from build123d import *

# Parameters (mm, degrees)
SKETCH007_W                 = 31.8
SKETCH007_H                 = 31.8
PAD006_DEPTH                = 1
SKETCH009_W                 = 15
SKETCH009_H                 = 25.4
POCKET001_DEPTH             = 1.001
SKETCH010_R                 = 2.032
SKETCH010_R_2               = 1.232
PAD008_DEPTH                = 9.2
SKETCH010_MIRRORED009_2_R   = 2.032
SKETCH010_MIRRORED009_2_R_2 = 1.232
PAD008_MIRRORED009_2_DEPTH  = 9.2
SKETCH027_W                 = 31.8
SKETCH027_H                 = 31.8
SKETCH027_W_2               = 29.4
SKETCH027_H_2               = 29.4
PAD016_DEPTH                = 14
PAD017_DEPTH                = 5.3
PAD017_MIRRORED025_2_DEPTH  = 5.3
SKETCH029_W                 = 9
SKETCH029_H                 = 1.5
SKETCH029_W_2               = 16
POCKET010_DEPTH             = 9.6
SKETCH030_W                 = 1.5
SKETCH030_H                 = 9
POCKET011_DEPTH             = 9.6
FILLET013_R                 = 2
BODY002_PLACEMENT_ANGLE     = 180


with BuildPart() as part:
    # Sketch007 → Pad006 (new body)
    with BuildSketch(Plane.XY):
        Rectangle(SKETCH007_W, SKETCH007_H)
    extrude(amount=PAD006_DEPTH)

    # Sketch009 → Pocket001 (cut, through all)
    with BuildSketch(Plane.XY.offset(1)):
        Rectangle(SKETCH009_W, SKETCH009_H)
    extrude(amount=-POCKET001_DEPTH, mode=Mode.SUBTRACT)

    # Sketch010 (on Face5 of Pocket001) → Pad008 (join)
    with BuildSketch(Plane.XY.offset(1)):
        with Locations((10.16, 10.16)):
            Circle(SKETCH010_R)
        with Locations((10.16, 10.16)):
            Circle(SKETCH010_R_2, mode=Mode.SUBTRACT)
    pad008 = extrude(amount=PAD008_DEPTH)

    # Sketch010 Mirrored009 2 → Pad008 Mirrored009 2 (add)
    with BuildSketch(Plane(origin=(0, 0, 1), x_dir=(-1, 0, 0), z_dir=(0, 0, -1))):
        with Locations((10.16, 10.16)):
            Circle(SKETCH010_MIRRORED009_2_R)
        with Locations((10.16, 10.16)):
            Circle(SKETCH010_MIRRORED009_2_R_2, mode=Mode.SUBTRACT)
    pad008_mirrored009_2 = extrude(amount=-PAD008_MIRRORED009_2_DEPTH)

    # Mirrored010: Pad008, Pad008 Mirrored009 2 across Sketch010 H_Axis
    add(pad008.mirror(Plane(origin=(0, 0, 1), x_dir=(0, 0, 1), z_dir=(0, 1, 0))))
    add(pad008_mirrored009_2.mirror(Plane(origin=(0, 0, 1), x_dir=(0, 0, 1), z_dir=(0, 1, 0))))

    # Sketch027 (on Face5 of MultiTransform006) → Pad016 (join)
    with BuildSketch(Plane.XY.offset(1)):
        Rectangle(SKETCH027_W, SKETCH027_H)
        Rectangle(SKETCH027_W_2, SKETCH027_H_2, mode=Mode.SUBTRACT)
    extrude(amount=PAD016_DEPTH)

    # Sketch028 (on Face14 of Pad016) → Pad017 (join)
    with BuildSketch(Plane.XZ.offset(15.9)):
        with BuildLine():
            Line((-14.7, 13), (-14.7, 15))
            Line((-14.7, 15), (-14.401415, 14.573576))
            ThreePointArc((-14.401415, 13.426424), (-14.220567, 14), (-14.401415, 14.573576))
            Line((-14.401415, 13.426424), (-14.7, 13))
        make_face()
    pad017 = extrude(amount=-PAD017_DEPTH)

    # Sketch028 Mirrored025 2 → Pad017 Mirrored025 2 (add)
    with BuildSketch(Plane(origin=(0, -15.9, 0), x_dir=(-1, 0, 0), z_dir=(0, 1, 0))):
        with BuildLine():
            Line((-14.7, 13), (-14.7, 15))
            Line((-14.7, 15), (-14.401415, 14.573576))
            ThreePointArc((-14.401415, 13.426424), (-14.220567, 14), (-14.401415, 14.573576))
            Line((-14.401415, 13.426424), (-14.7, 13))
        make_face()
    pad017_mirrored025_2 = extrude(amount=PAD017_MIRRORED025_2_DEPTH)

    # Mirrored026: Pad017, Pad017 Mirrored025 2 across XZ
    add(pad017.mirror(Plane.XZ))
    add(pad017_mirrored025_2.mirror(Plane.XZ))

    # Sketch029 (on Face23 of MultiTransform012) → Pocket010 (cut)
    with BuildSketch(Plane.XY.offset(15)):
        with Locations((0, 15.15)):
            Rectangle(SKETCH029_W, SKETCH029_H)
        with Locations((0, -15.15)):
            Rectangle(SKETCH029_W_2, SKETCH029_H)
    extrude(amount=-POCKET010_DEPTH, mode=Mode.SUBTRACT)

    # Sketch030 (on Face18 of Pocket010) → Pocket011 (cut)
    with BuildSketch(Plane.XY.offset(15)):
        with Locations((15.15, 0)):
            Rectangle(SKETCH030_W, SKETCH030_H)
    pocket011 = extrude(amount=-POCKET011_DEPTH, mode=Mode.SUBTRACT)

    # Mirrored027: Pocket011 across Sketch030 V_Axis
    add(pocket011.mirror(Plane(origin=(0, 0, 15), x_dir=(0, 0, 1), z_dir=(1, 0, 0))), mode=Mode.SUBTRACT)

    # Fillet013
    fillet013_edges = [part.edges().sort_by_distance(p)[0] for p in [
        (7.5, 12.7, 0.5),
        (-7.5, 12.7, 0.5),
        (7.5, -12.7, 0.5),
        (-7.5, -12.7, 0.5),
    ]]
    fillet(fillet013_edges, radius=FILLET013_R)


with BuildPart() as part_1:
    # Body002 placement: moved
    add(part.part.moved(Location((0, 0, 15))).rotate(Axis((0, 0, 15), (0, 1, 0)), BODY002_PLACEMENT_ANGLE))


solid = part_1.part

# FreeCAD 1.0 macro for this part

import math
import FreeCAD as App
import Part
import Sketcher
from FreeCAD import Vector


def edges_at(feature, points):
    """Names of the edges that pass closest to the given points."""
    edges = feature.Shape.Edges
    near = lambda p: min(range(len(edges)), key=lambda i: edges[i].distToShape(Part.Vertex(*p))[0])
    return sorted({f"Edge{near(p) + 1}" for p in points})


def add_polygon(sketch, points):
    """Adds a closed chain of lines whose ends are joined by coincident constraints."""
    first, n = sketch.GeometryCount, len(points)
    for a, b in zip(points, points[1:] + points[:1]):
        sketch.addGeometry(Part.LineSegment(App.Vector(*a, 0), App.Vector(*b, 0)), False)
    for i in range(n):
        sketch.addConstraint(Sketcher.Constraint("Coincident", first + i, 2, first + (i + 1) % n, 1))

doc = App.newDocument("Part")
body = doc.addObject("PartDesign::Body", "Body")

sketch1 = doc.addObject("Sketcher::SketchObject", "Sketch")
body.addObject(sketch1)
sketch1.AttachmentSupport = (doc.XY_Plane, [""])
sketch1.MapMode = "FlatFace"
add_polygon(sketch1, [(-16, 16), (-16, -16), (16, -16), (16, 16)])
sketch1.addConstraint([
    Sketcher.Constraint("Vertical", 0),
    Sketcher.Constraint("Horizontal", 1),
    Sketcher.Constraint("Vertical", 2),
    Sketcher.Constraint("Horizontal", 3),
    Sketcher.Constraint("Symmetric", 0, 2, 2, 2, -1, 1),
    Sketcher.Constraint("Equal", 3, 0),
    Sketcher.Constraint("DistanceX", 1, 1, 1, 2, 31.8),
])
pad1 = doc.addObject("PartDesign::Pad", "Pad")
body.addObject(pad1)
pad1.Profile = sketch1
pad1.Length = 1

sketch2 = doc.addObject("Sketcher::SketchObject", "Sketch001")
body.addObject(sketch2)
sketch2.AttachmentSupport = (doc.XY_Plane, [""])
sketch2.MapMode = "FlatFace"
sketch2.AttachmentOffset = App.Placement(Vector(0, 0, 1), App.Rotation())
add_polygon(sketch2, [(-8, 13), (-8, -13), (8, -13), (8, 13)])
sketch2.addConstraint([
    Sketcher.Constraint("Vertical", 0),
    Sketcher.Constraint("Horizontal", 1),
    Sketcher.Constraint("Vertical", 2),
    Sketcher.Constraint("Horizontal", 3),
    Sketcher.Constraint("Symmetric", 0, 2, 2, 2, -1, 1),
    Sketcher.Constraint("DistanceX", 1, 1, 1, 2, 15.0),
    Sketcher.Constraint("DistanceY", 0, 2, 0, 1, 25.4),
])
pocket1 = doc.addObject("PartDesign::Pocket", "Pocket")
body.addObject(pocket1)
pocket1.Profile = sketch2
pocket1.Type = "ThroughAll"

sketch3 = doc.addObject("Sketcher::SketchObject", "Sketch002")
body.addObject(sketch3)
sketch3.AttachmentSupport = (doc.XY_Plane, [""])
sketch3.MapMode = "FlatFace"
sketch3.AttachmentOffset = App.Placement(Vector(0, 0, 1), App.Rotation())
sketch3.addGeometry([
    Part.Circle(Vector(10.2, 10.2, 0), Vector(0, 0, 1), 2),
    Part.Circle(Vector(10.2, 10.2, 0), Vector(0, 0, 1), 1.2),
], False)
sketch3.addConstraint([
    Sketcher.Constraint("Coincident", 1, 3, 0, 3),
    Sketcher.Constraint("Diameter", 0, 4.064),
    Sketcher.Constraint("Diameter", 1, 2.464),
    Sketcher.Constraint("DistanceX", -1, 1, 0, 3, 10.16),
    Sketcher.Constraint("DistanceY", -1, 1, 0, 3, 10.16),
])
pad2 = doc.addObject("PartDesign::Pad", "Pad001")
body.addObject(pad2)
pad2.Profile = sketch3
pad2.Length = 9.2

sketch4 = doc.addObject("Sketcher::SketchObject", "Sketch003")
body.addObject(sketch4)
sketch4.AttachmentSupport = (doc.XY_Plane, [""])
sketch4.MapMode = "FlatFace"
sketch4.AttachmentOffset = App.Placement(Vector(0, 0, 1), App.Rotation())
sketch4.addGeometry([
    Part.Circle(Vector(-10.2, 10.2, 0), Vector(0, 0, 1), 2),
    Part.Circle(Vector(-10.2, 10.2, 0), Vector(0, 0, 1), 1.2),
], False)
sketch4.addConstraint([
    Sketcher.Constraint("Coincident", 1, 3, 0, 3),
    Sketcher.Constraint("Diameter", 0, 4.064),
    Sketcher.Constraint("Diameter", 1, 2.464),
    Sketcher.Constraint("DistanceX", 0, 3, -1, 1, 10.16),
    Sketcher.Constraint("DistanceY", -1, 1, 0, 3, 10.16),
])
pad3 = doc.addObject("PartDesign::Pad", "Pad002")
body.addObject(pad3)
pad3.Profile = sketch4
pad3.Length = 9.2
doc.recompute()

mirrored = doc.addObject("PartDesign::Mirrored", "Mirrored")
body.addObject(mirrored)
mirrored.Originals = [pad2, pad3]
mirrored.MirrorPlane = (doc.XZ_Plane, [""])
body.Tip = mirrored

sketch5 = doc.addObject("Sketcher::SketchObject", "Sketch004")
body.addObject(sketch5)
sketch5.AttachmentSupport = (doc.XY_Plane, [""])
sketch5.MapMode = "FlatFace"
sketch5.AttachmentOffset = App.Placement(Vector(0, 0, 1), App.Rotation())
add_polygon(sketch5, [(-16, 16), (-16, -16), (16, -16), (16, 16)])
add_polygon(sketch5, [(15, -15), (-15, -15), (-15, 15), (15, 15)])
sketch5.addConstraint([
    Sketcher.Constraint("Vertical", 0),
    Sketcher.Constraint("Horizontal", 1),
    Sketcher.Constraint("Vertical", 2),
    Sketcher.Constraint("Horizontal", 3),
    Sketcher.Constraint("Horizontal", 4),
    Sketcher.Constraint("Vertical", 5),
    Sketcher.Constraint("Horizontal", 6),
    Sketcher.Constraint("Vertical", 7),
    Sketcher.Constraint("Symmetric", 0, 2, 2, 2, -1, 1),
    Sketcher.Constraint("Symmetric", 4, 2, 6, 2, -1, 1),
    Sketcher.Constraint("Equal", 3, 0),
    Sketcher.Constraint("Equal", 6, 5),
    Sketcher.Constraint("DistanceX", 1, 1, 1, 2, 31.8),
    Sketcher.Constraint("DistanceX", 4, 2, 4, 1, 29.4),
])
pad4 = doc.addObject("PartDesign::Pad", "Pad003")
body.addObject(pad4)
pad4.Profile = sketch5
pad4.Length = 14

sketch6 = doc.addObject("Sketcher::SketchObject", "Sketch005")
body.addObject(sketch6)
sketch6.AttachmentSupport = (doc.XZ_Plane, [""])
sketch6.MapMode = "FlatFace"
sketch6.AttachmentOffset = App.Placement(Vector(0, 0, 15.9), App.Rotation())
sketch6.addGeometry([
    Part.LineSegment(Vector(-14.7, 15, 0), Vector(-14.7, 13, 0)),
    Part.LineSegment(Vector(-14.7, 13, 0), Vector(-14.4, 13.4, 0)),
    Part.ArcOfCircle(Part.Circle(Vector(-15.2, 14, 0), Vector(0, 0, 1), 1), math.radians(-35), math.radians(35)),
    Part.LineSegment(Vector(-14.4, 14.6, 0), Vector(-14.7, 15, 0)),
], False)
sketch6.addConstraint([
    Sketcher.Constraint("Coincident", 0, 2, 1, 1),
    Sketcher.Constraint("Tangent", 1, 2, 2, 1),
    Sketcher.Constraint("Tangent", 2, 2, 3, 1),
    Sketcher.Constraint("Coincident", 3, 2, 0, 1),
    Sketcher.Constraint("Vertical", 0),
    Sketcher.Constraint("Vertical", 1, 2, 2, 2),
    Sketcher.Constraint("Radius", 2, 0.999998),
    Sketcher.Constraint("DistanceY", 0, 2, 0, 1, 2.0),
    Sketcher.Constraint("DistanceY", -1, 1, 2, 3, 14.0),
    Sketcher.Constraint("DistanceX", 0, 2, -1, 1, 14.7),
    Sketcher.Constraint("DistanceX", 2, 3, 1, 2, 0.81915),
])
pad5 = doc.addObject("PartDesign::Pad", "Pad004")
body.addObject(pad5)
pad5.Profile = sketch6
pad5.Length = 5.3
pad5.Reversed = True

sketch7 = doc.addObject("Sketcher::SketchObject", "Sketch006")
body.addObject(sketch7)
sketch7.AttachmentSupport = (doc.XZ_Plane, [""])
sketch7.MapMode = "FlatFace"
sketch7.AttachmentOffset = App.Placement(Vector(0, 0, 15.9), App.Rotation())
sketch7.addGeometry([
    Part.LineSegment(Vector(14.7, 15, 0), Vector(14.7, 13, 0)),
    Part.LineSegment(Vector(14.7, 13, 0), Vector(14.4, 13.4, 0)),
    Part.ArcOfCircle(Part.Circle(Vector(15.2, 14, 0), Vector(0, 0, 1), 1), math.radians(145), math.radians(215)),
    Part.LineSegment(Vector(14.4, 14.6, 0), Vector(14.7, 15, 0)),
], False)
sketch7.addConstraint([
    Sketcher.Constraint("Coincident", 0, 2, 1, 1),
    Sketcher.Constraint("Tangent", 1, 2, 2, 2),
    Sketcher.Constraint("Tangent", 2, 1, 3, 1),
    Sketcher.Constraint("Coincident", 3, 2, 0, 1),
    Sketcher.Constraint("Vertical", 0),
    Sketcher.Constraint("Vertical", 1, 2, 2, 1),
    Sketcher.Constraint("Radius", 2, 0.999998),
    Sketcher.Constraint("DistanceY", 0, 2, 0, 1, 2.0),
    Sketcher.Constraint("DistanceY", -1, 1, 2, 3, 14.0),
    Sketcher.Constraint("DistanceX", -1, 1, 0, 2, 14.7),
    Sketcher.Constraint("DistanceX", 1, 2, 2, 3, 0.81915),
])
pad6 = doc.addObject("PartDesign::Pad", "Pad005")
body.addObject(pad6)
pad6.Profile = sketch7
pad6.Length = 5.3
pad6.Reversed = True
doc.recompute()

mirrored2 = doc.addObject("PartDesign::Mirrored", "Mirrored001")
body.addObject(mirrored2)
mirrored2.Originals = [pad5, pad6]
mirrored2.MirrorPlane = (doc.XZ_Plane, [""])
body.Tip = mirrored2

sketch8 = doc.addObject("Sketcher::SketchObject", "Sketch007")
body.addObject(sketch8)
sketch8.AttachmentSupport = (doc.XY_Plane, [""])
sketch8.MapMode = "FlatFace"
sketch8.AttachmentOffset = App.Placement(Vector(0, 0, 15), App.Rotation())
add_polygon(sketch8, [(-4.5, 15.9), (-4.5, 14.4), (4.5, 14.4), (4.5, 15.9)])
add_polygon(sketch8, [(-8, -14.4), (-8, -15.9), (8, -15.9), (8, -14.4)])
sketch8.addConstraint([
    Sketcher.Constraint("Vertical", 0),
    Sketcher.Constraint("Horizontal", 1),
    Sketcher.Constraint("Vertical", 2),
    Sketcher.Constraint("Horizontal", 3),
    Sketcher.Constraint("Vertical", 4),
    Sketcher.Constraint("Horizontal", 5),
    Sketcher.Constraint("Vertical", 6),
    Sketcher.Constraint("Horizontal", 7),
    Sketcher.Constraint("Equal", 2, 4),
    Sketcher.Constraint("DistanceX", 1, 1, 1, 2, 9.0),
    Sketcher.Constraint("DistanceX", 5, 1, 5, 2, 16.0),
    Sketcher.Constraint("DistanceY", 0, 2, 0, 1, 1.5),
    Sketcher.Constraint("DistanceX", 4, 2, -1, 1, 8.0),
    Sketcher.Constraint("DistanceX", 0, 2, -1, 1, 4.5),
    Sketcher.Constraint("DistanceY", -1, 1, 0, 2, 14.4),
    Sketcher.Constraint("DistanceY", 4, 2, -1, 1, 15.9),
])
pocket2 = doc.addObject("PartDesign::Pocket", "Pocket001")
body.addObject(pocket2)
pocket2.Profile = sketch8
pocket2.Length = 9.6

sketch9 = doc.addObject("Sketcher::SketchObject", "Sketch008")
body.addObject(sketch9)
sketch9.AttachmentSupport = (doc.XY_Plane, [""])
sketch9.MapMode = "FlatFace"
sketch9.AttachmentOffset = App.Placement(Vector(0, 0, 15), App.Rotation())
add_polygon(sketch9, [(14.4, 4.5), (14.4, -4.5), (15.9, -4.5), (15.9, 4.5)])
sketch9.addConstraint([
    Sketcher.Constraint("Vertical", 0),
    Sketcher.Constraint("Horizontal", 1),
    Sketcher.Constraint("Vertical", 2),
    Sketcher.Constraint("Horizontal", 3),
    Sketcher.Constraint("DistanceY", 0, 2, 0, 1, 9.0),
    Sketcher.Constraint("DistanceX", 1, 1, 1, 2, 1.5),
    Sketcher.Constraint("DistanceX", -1, 1, 0, 2, 14.4),
    Sketcher.Constraint("DistanceY", 0, 2, -1, 1, 4.5),
])
pocket3 = doc.addObject("PartDesign::Pocket", "Pocket002")
body.addObject(pocket3)
pocket3.Profile = sketch9
pocket3.Length = 9.6
doc.recompute()

mirrored3 = doc.addObject("PartDesign::Mirrored", "Mirrored002")
body.addObject(mirrored3)
mirrored3.Originals = [pocket3]
mirrored3.MirrorPlane = (doc.YZ_Plane, [""])
body.Tip = mirrored3
doc.recompute()

fillet = doc.addObject("PartDesign::Fillet", "Fillet")
body.addObject(fillet)
fillet.Base = (mirrored3, edges_at(mirrored3, [
    (7.5, 12.7, 0.5),
    (-7.5, 12.7, 0.5),
    (7.5, -12.7, 0.5),
    (-7.5, -12.7, 0.5),
]))
fillet.Radius = 2
body2 = doc.addObject("PartDesign::Body", "Body001")
doc.recompute()

body.Placement = App.Placement(Vector(0, 0, 15), App.Rotation(Vector(0, 1, 0), 180))
boolean = doc.addObject("PartDesign::Boolean", "Boolean")
body2.addObject(boolean)
boolean.Type = "Fuse"
boolean.addObjects([body])

doc.recompute()
